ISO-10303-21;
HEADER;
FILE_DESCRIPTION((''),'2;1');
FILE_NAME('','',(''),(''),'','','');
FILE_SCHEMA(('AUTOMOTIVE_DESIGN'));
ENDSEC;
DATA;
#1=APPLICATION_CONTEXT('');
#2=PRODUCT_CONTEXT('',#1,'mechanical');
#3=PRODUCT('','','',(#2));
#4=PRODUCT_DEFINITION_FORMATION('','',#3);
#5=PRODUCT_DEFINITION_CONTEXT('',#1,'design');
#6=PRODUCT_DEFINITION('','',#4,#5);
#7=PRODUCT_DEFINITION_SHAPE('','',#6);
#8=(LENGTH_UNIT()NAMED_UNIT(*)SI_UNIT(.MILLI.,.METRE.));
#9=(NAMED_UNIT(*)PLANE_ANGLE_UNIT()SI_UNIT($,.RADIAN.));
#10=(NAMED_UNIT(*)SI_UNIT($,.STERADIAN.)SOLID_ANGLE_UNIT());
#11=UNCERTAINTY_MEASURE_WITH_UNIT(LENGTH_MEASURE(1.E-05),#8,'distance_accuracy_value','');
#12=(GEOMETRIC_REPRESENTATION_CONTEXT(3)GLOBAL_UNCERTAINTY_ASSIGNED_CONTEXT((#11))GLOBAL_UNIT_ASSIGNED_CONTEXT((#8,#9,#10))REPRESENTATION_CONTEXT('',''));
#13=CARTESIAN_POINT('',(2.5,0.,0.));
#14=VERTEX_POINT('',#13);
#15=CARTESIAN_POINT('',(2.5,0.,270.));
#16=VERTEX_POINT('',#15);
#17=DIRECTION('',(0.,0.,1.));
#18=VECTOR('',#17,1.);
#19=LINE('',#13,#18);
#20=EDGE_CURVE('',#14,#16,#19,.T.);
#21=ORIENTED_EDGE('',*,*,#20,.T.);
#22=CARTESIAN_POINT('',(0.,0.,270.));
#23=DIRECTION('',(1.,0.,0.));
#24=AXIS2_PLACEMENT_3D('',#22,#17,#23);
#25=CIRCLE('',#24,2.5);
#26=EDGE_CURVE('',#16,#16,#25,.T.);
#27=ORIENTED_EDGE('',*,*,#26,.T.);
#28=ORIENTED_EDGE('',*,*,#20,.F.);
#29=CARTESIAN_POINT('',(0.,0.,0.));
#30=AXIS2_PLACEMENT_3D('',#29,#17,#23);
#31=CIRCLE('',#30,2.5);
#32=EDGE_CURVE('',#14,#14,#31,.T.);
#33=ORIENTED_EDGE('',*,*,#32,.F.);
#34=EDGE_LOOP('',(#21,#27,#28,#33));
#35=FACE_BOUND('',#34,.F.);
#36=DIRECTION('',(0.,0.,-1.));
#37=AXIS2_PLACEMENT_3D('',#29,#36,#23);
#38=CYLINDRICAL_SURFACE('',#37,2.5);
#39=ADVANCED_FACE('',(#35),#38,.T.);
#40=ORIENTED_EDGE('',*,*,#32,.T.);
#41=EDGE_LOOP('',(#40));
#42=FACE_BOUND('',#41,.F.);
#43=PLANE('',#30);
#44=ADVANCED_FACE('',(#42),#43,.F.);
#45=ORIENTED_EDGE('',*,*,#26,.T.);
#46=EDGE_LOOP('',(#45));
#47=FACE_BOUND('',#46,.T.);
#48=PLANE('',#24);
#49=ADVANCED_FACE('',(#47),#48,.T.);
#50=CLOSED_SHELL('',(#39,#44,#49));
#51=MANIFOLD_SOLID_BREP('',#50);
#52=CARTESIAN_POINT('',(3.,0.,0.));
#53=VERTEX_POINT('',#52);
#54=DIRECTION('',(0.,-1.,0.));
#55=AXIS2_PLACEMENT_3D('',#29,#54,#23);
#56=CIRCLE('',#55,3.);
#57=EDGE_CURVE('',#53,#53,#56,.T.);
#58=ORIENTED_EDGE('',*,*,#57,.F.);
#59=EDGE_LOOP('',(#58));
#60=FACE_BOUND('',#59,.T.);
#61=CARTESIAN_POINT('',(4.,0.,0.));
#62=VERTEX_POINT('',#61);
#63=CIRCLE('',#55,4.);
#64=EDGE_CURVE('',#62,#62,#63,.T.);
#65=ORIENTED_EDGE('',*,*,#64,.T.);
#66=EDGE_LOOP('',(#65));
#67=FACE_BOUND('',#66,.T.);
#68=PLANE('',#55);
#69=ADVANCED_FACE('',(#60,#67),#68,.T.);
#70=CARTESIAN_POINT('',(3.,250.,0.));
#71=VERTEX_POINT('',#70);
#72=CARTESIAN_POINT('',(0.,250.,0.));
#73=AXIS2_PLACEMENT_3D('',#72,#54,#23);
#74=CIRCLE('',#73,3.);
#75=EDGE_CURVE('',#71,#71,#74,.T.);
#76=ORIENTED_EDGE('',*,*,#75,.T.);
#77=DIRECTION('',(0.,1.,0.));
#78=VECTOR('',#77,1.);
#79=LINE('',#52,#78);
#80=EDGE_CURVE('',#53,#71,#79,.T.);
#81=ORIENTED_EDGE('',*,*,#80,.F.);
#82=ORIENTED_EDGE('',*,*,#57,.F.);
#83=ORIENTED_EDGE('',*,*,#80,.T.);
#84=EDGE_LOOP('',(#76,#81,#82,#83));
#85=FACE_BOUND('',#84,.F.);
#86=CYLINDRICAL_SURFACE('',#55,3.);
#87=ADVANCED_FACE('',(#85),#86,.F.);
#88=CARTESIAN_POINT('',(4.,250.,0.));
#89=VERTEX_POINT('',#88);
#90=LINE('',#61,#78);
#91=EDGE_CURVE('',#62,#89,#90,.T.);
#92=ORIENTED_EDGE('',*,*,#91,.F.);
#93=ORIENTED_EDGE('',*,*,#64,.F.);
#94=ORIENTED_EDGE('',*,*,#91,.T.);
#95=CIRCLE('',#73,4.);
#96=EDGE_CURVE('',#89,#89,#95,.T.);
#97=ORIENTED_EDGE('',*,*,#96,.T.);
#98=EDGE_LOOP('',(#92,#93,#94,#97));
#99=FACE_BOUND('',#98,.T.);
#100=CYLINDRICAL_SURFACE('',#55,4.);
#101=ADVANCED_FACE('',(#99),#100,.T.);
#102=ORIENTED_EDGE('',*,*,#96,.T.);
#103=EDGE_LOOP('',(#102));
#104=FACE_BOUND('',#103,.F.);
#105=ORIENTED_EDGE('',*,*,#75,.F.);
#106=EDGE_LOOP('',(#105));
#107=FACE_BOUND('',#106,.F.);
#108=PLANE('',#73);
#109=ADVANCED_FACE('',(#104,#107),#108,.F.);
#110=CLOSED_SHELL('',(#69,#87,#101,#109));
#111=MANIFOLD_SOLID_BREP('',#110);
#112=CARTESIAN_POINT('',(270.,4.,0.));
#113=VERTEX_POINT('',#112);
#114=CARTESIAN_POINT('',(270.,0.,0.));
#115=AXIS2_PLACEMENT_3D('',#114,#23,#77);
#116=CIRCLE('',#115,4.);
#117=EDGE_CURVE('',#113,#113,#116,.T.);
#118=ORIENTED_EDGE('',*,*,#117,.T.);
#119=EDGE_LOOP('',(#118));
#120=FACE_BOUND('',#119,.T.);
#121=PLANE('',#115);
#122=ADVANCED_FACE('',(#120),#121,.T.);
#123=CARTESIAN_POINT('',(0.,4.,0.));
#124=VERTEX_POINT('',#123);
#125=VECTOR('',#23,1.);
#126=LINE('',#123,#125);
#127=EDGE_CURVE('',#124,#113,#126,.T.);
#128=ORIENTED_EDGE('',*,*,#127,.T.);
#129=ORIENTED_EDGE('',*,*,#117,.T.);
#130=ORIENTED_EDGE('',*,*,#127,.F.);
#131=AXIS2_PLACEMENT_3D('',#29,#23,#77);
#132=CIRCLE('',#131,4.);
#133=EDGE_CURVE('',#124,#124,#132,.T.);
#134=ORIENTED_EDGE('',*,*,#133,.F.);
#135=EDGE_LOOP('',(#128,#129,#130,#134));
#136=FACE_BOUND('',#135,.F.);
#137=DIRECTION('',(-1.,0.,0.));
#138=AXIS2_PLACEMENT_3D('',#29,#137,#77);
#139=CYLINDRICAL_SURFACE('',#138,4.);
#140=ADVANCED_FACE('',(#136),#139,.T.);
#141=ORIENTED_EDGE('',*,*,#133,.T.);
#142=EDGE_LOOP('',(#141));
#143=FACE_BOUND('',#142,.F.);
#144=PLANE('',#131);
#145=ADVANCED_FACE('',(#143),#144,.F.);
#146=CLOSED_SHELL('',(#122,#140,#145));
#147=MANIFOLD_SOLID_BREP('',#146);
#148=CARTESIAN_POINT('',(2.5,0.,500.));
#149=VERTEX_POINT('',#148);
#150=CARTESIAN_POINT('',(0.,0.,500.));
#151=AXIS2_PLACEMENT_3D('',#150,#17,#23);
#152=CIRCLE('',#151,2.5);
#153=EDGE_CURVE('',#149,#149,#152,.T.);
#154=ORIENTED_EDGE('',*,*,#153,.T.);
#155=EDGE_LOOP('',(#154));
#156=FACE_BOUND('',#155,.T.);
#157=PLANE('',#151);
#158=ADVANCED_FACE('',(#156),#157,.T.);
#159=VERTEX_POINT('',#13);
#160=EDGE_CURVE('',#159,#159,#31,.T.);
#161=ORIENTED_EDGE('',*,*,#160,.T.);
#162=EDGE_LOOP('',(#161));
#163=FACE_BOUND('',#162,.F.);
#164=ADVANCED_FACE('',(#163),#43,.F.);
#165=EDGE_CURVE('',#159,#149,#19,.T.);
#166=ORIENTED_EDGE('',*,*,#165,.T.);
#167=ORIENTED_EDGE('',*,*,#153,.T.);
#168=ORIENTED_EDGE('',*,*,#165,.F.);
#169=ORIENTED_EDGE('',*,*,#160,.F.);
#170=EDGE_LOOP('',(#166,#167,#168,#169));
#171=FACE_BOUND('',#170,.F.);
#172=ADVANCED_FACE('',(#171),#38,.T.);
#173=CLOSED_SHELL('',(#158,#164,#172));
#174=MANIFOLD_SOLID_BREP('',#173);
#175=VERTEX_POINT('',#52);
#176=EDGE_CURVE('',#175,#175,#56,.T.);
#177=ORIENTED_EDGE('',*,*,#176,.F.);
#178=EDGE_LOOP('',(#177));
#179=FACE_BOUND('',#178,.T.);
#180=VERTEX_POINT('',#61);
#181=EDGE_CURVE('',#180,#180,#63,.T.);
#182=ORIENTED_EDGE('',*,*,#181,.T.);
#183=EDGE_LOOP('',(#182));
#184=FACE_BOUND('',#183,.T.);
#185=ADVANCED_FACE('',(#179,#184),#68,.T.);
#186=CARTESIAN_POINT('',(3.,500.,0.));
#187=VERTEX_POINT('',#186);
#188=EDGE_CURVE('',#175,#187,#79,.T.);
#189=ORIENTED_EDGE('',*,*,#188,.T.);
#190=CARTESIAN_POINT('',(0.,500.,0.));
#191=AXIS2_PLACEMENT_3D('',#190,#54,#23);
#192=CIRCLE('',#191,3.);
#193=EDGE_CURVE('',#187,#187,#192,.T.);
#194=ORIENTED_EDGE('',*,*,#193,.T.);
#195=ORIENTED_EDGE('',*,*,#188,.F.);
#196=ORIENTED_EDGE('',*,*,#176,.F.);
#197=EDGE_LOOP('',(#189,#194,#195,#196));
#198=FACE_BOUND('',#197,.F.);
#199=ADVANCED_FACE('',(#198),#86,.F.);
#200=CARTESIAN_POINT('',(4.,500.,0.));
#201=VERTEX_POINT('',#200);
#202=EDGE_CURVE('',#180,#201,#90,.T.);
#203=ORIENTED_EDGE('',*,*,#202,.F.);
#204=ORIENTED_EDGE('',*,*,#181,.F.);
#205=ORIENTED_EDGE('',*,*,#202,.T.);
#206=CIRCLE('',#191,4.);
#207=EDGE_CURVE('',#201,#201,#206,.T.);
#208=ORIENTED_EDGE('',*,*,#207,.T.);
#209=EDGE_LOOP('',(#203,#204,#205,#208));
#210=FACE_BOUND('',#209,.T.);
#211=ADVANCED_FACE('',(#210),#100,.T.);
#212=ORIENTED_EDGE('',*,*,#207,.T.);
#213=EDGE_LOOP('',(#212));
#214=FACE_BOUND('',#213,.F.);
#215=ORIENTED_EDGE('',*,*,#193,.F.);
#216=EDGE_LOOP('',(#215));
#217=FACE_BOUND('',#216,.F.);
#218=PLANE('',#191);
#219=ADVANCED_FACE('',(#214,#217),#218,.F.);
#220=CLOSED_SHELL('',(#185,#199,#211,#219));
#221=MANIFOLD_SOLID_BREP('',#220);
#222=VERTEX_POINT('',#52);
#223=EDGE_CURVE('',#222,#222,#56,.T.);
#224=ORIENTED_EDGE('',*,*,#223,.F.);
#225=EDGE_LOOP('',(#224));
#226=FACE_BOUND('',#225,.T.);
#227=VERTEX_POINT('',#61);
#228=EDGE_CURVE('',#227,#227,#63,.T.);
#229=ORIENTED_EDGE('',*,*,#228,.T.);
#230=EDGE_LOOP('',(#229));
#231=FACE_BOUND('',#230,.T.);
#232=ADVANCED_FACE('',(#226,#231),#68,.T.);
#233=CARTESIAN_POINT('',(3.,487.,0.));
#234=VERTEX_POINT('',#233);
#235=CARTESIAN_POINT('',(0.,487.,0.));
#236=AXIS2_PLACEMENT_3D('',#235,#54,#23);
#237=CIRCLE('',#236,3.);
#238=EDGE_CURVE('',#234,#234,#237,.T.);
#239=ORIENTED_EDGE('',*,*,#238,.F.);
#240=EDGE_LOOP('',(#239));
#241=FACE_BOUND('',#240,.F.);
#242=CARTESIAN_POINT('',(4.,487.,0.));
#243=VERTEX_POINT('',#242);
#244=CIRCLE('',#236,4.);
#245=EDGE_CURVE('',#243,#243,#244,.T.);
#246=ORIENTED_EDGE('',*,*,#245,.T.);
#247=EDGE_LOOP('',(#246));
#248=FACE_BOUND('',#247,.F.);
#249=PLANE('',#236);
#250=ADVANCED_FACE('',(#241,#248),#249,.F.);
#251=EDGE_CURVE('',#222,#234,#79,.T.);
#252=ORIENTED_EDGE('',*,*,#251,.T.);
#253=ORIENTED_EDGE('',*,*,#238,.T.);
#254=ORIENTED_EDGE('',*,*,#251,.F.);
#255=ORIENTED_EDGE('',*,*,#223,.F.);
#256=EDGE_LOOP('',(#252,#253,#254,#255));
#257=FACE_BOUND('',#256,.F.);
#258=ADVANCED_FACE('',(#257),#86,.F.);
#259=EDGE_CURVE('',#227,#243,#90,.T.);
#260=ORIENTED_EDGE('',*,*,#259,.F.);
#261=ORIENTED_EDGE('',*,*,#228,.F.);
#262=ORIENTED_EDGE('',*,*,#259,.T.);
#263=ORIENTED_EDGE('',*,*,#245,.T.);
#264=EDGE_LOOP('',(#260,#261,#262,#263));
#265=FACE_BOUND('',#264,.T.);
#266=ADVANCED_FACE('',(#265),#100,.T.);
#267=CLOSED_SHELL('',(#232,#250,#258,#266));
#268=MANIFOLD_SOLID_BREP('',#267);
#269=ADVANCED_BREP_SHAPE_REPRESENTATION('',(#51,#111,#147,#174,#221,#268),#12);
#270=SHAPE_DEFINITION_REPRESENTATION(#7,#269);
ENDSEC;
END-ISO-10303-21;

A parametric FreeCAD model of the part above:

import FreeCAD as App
import Part
import Sketcher
Q = App.Units.Quantity

doc = App.newDocument("Part")
body = doc.addObject("PartDesign::Body", "Body")

sketch1 = body.newObject("Sketcher::SketchObject", "Sketch")
sketch1.AttachmentSupport = (doc.getObject("XZ_Plane"), [""])
sketch1.MapMode = "FlatFace"
sketch1.addGeometry([
    Part.Circle(App.Vector(0, 0, 0), App.Vector(0, 0, 1), 4),
    Part.Circle(App.Vector(0, 0, 0), App.Vector(0, 0, 1), 3),
], False)
sketch1.addConstraint([
    Sketcher.Constraint("Coincident", 0, 3, -1, 1),
    Sketcher.Constraint("Coincident", 1, 3, -1, 1),
    Sketcher.Constraint("Diameter", 0, Q("8 mm")),
    Sketcher.Constraint("Diameter", 1, Q("6 mm")),
])
pad1 = body.newObject("PartDesign::Pad", "Pad")
pad1.Profile = sketch1
pad1.Length = 500
pad1.Reversed = True
body2 = doc.addObject("PartDesign::Body", "Body001")

sketch2 = body2.newObject("Sketcher::SketchObject", "Sketch001")
sketch2.AttachmentSupport = (doc.getObject("XZ_Plane001"), [""])
sketch2.MapMode = "FlatFace"
sketch2.addGeometry([
    Part.Circle(App.Vector(0, 0, 0), App.Vector(0, 0, 1), 4),
    Part.Circle(App.Vector(0, 0, 0), App.Vector(0, 0, 1), 3),
], False)
sketch2.addConstraint([
    Sketcher.Constraint("Coincident", 0, 3, -1, 1),
    Sketcher.Constraint("Coincident", 1, 3, -1, 1),
    Sketcher.Constraint("Diameter", 0, Q("8 mm")),
    Sketcher.Constraint("Diameter", 1, Q("6 mm")),
])
pad2 = body2.newObject("PartDesign::Pad", "Pad001")
pad2.Profile = sketch2
pad2.Length = 487
pad2.Reversed = True
body3 = doc.addObject("PartDesign::Body", "Body002")

sketch3 = body3.newObject("Sketcher::SketchObject", "Sketch002")
sketch3.AttachmentSupport = (doc.getObject("XY_Plane002"), [""])
sketch3.MapMode = "FlatFace"
sketch3.addGeometry(Part.Circle(App.Vector(0, 0, 0), App.Vector(0, 0, 1), 2.5), False)
sketch3.addConstraint([
    Sketcher.Constraint("Coincident", 0, 3, -1, 1),
    Sketcher.Constraint("Diameter", 0, Q("5 mm")),
])
pad3 = body3.newObject("PartDesign::Pad", "Pad002")
pad3.Profile = sketch3
pad3.Length = 500
body4 = doc.addObject("PartDesign::Body", "Body003")

sketch4 = body4.newObject("Sketcher::SketchObject", "Sketch003")
sketch4.AttachmentSupport = (doc.getObject("XZ_Plane003"), [""])
sketch4.MapMode = "FlatFace"
sketch4.addGeometry([
    Part.Circle(App.Vector(0, 0, 0), App.Vector(0, 0, 1), 4),
    Part.Circle(App.Vector(0, 0, 0), App.Vector(0, 0, 1), 3),
], False)
sketch4.addConstraint([
    Sketcher.Constraint("Coincident", 0, 3, -1, 1),
    Sketcher.Constraint("Coincident", 1, 3, -1, 1),
    Sketcher.Constraint("Diameter", 0, Q("8 mm")),
    Sketcher.Constraint("Diameter", 1, Q("6 mm")),
])
pad4 = body4.newObject("PartDesign::Pad", "Pad003")
pad4.Profile = sketch4
pad4.Length = 250
pad4.Reversed = True
body5 = doc.addObject("PartDesign::Body", "Body004")

sketch5 = body5.newObject("Sketcher::SketchObject", "Sketch004")
sketch5.AttachmentSupport = (doc.getObject("YZ_Plane004"), [""])
sketch5.MapMode = "FlatFace"
sketch5.addGeometry(Part.Circle(App.Vector(0, 0, 0), App.Vector(0, 0, 1), 4), False)
sketch5.addConstraint([
    Sketcher.Constraint("Coincident", 0, 3, -1, 1),
    Sketcher.Constraint("Diameter", 0, Q("8 mm")),
])
pad5 = body5.newObject("PartDesign::Pad", "Pad004")
pad5.Profile = sketch5
pad5.Length = 270
body6 = doc.addObject("PartDesign::Body", "Body005")

sketch6 = body6.newObject("Sketcher::SketchObject", "Sketch005")
sketch6.AttachmentSupport = (doc.getObject("XY_Plane005"), [""])
sketch6.MapMode = "FlatFace"
sketch6.addGeometry(Part.Circle(App.Vector(0, 0, 0), App.Vector(0, 0, 1), 2.5), False)
sketch6.addConstraint([
    Sketcher.Constraint("Coincident", 0, 3, -1, 1),
    Sketcher.Constraint("Diameter", 0, Q("5 mm")),
])
pad6 = body6.newObject("PartDesign::Pad", "Pad005")
pad6.Profile = sketch6
pad6.Length = 270

doc.recompute()
